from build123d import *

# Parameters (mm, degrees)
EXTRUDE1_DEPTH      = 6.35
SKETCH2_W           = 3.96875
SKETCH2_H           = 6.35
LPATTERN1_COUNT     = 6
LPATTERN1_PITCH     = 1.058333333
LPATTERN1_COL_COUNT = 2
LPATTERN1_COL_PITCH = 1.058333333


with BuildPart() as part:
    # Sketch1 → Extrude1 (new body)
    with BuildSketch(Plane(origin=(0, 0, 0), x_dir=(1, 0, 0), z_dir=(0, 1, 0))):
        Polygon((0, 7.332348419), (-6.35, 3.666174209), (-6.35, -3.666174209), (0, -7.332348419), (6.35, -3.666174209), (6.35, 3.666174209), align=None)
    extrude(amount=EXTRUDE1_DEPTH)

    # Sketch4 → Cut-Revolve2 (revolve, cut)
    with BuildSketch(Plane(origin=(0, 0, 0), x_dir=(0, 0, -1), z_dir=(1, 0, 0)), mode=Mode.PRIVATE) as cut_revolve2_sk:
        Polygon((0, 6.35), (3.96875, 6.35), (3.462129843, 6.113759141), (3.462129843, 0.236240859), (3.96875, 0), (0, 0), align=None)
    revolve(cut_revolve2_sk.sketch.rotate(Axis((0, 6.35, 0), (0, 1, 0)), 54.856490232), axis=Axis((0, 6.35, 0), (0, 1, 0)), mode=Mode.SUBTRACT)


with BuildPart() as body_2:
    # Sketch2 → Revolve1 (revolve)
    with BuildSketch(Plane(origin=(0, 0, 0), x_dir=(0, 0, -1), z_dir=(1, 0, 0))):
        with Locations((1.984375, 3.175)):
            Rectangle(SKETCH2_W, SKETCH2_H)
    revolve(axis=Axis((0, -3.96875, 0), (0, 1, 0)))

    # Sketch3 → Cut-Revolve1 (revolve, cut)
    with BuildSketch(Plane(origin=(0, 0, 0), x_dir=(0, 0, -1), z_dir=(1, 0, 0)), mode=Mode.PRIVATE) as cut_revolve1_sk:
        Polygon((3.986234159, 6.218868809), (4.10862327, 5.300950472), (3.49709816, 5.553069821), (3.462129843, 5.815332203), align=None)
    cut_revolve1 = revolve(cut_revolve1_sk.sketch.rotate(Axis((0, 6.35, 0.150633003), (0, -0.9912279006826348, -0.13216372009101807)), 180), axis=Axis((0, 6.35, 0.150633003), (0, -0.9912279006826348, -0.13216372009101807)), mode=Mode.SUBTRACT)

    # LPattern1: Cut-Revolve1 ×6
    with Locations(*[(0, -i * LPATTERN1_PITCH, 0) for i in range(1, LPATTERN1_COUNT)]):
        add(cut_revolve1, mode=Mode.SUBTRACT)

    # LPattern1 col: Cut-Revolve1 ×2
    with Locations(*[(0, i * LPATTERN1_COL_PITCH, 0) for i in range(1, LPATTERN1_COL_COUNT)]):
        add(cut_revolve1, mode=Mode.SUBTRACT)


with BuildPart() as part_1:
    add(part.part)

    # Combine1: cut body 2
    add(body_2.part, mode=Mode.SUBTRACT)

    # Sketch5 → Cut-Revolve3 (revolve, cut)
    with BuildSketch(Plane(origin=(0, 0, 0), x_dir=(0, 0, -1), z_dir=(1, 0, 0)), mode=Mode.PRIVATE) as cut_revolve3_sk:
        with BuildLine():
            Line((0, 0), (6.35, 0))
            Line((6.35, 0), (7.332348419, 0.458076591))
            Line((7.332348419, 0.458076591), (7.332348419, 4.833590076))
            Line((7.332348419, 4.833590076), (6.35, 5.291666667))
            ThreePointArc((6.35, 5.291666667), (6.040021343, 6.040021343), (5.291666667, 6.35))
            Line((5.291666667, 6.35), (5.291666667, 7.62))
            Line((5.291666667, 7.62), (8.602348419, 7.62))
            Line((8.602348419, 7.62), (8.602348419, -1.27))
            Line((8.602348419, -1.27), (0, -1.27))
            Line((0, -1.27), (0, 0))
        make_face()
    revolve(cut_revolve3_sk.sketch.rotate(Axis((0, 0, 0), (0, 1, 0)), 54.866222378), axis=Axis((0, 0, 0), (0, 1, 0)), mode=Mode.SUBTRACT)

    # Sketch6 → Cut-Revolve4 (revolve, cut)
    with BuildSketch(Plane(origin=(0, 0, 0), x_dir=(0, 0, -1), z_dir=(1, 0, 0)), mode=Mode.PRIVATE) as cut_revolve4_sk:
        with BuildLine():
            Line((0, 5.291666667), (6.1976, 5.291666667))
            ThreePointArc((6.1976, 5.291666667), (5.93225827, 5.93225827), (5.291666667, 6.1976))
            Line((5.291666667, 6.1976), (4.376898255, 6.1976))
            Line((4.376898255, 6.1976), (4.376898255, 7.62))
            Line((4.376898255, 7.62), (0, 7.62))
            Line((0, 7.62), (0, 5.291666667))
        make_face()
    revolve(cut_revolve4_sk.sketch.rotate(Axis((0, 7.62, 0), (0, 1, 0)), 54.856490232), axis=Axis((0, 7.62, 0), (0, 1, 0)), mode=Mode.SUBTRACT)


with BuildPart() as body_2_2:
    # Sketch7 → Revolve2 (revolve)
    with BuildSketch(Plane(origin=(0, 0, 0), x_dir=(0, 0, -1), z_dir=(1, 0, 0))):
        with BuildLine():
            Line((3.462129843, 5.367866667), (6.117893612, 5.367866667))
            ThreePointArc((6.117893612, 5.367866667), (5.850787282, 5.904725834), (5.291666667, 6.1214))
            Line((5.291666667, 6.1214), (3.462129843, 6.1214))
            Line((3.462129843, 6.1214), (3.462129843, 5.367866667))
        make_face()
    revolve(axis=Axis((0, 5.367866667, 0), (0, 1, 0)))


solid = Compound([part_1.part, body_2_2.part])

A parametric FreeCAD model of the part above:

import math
import FreeCAD as App
import Part
import Sketcher
from FreeCAD import Vector
Q = App.Units.Quantity

doc = App.newDocument("Part")
body = doc.addObject("PartDesign::Body", "Body")

sketch1 = body.newObject("Sketcher::SketchObject", "Sketch")
sketch1.AttachmentSupport = (doc.getObject("XZ_Plane"), [""])
sketch1.MapMode = "FlatFace"
sketch1.addGeometry([
    Part.LineSegment(Vector(0, -7, 0), Vector(-6, -4, 0)),
    Part.LineSegment(Vector(-6, -4, 0), Vector(-6, 4, 0)),
    Part.LineSegment(Vector(-6, 4, 0), Vector(0, 7, 0)),
    Part.LineSegment(Vector(0, 7, 0), Vector(6, 4, 0)),
    Part.LineSegment(Vector(6, 4, 0), Vector(6, -4, 0)),
    Part.LineSegment(Vector(6, -4, 0), Vector(0, -7, 0)),
], False)
sketch1.addConstraint([
    Sketcher.Constraint("Coincident", 0, 2, 1, 1),
    Sketcher.Constraint("Coincident", 1, 2, 2, 1),
    Sketcher.Constraint("Coincident", 2, 2, 3, 1),
    Sketcher.Constraint("Coincident", 3, 2, 4, 1),
    Sketcher.Constraint("Coincident", 4, 2, 5, 1),
    Sketcher.Constraint("Coincident", 5, 2, 0, 1),
    Sketcher.Constraint("Vertical", 1),
    Sketcher.Constraint("Vertical", 4),
    Sketcher.Constraint("Symmetric", 0, 2, 3, 2, -1, 1),
    Sketcher.Constraint("Symmetric", 2, 2, 5, 2, -1, 1),
    Sketcher.Constraint("PointOnObject", 2, 2, -2),
    Sketcher.Constraint("Parallel", 2, 5),
    Sketcher.Constraint("Horizontal", 1, 2, 3, 2),
    Sketcher.Constraint("Angle", 0, Q("150 deg")),
    Sketcher.Constraint("DistanceX", 1, 2, 3, 2, Q("0.5 in")),
    Sketcher.Constraint("DistanceY", 1, 1, 1, 2, Q("7.332348 mm")),
])
pad1 = body.newObject("PartDesign::Pad", "Pad")
pad1.Profile = sketch1
pad1.Length = Q("0.25 in")
pad1.Reversed = True

sketch2 = body.newObject("Sketcher::SketchObject", "Sketch001")
sketch2.AttachmentSupport = (doc.getObject("YZ_Plane"), [""])
sketch2.MapMode = "FlatFace"
sketch2.addGeometry([
    Part.LineSegment(Vector(6.3, -4, 0), Vector(6.3, 0, 0)),
    Part.LineSegment(Vector(6.3, 0, 0), Vector(0, 0, 0)),
    Part.LineSegment(Vector(0, 0, 0), Vector(0, -4, 0)),
    Part.LineSegment(Vector(0, -4, 0), Vector(0.2, -3.5, 0)),
    Part.LineSegment(Vector(0.2, -3.5, 0), Vector(6.1, -3.5, 0)),
    Part.LineSegment(Vector(6.1, -3.5, 0), Vector(6.3, -4, 0)),
], False)
sketch2.addConstraint([
    Sketcher.Constraint("Coincident", 0, 2, 1, 1),
    Sketcher.Constraint("Coincident", 1, 2, 2, 1),
    Sketcher.Constraint("Coincident", 2, 2, 3, 1),
    Sketcher.Constraint("Coincident", 3, 2, 4, 1),
    Sketcher.Constraint("Coincident", 4, 2, 5, 1),
    Sketcher.Constraint("Coincident", 5, 2, 0, 1),
    Sketcher.Constraint("Vertical", 0),
    Sketcher.Constraint("Horizontal", 1),
    Sketcher.Constraint("Vertical", 2),
    Sketcher.Constraint("Horizontal", 4),
    Sketcher.Constraint("Coincident", 1, 2, -1, 1),
    Sketcher.Constraint("Horizontal", 2, 2, 5, 2),
    Sketcher.Constraint("Equal", 3, 5),
    Sketcher.Constraint("Angle", 3, Q("65 deg")),
    Sketcher.Constraint("DistanceX", 1, 2, 1, 1, Q("0.25 in")),
    Sketcher.Constraint("DistanceY", 0, 1, 0, 2, Q("0.15625 in")),
    Sketcher.Constraint("DistanceX", 4, 1, 4, 2, Q("5.877518 mm")),
])
groove = body.newObject("PartDesign::Groove", "Groove")
groove.Profile = sketch2
groove.ReferenceAxis = (sketch2, ["H_Axis"])
groove.Angle = 360
body2 = doc.addObject("PartDesign::Body", "Body001")

sketch3 = body2.newObject("Sketcher::SketchObject", "Sketch002")
sketch3.AttachmentSupport = (doc.getObject("YZ_Plane001"), [""])
sketch3.MapMode = "FlatFace"
sketch3.addGeometry([
    Part.LineSegment(Vector(6.3, 0, 0), Vector(0, 0, 0)),
    Part.LineSegment(Vector(0, 0, 0), Vector(0, -4, 0)),
    Part.LineSegment(Vector(0, -4, 0), Vector(6.3, -4, 0)),
    Part.LineSegment(Vector(6.3, -4, 0), Vector(6.3, 0, 0)),
], False)
sketch3.addConstraint([
    Sketcher.Constraint("Coincident", 0, 2, 1, 1),
    Sketcher.Constraint("Coincident", 1, 2, 2, 1),
    Sketcher.Constraint("Coincident", 2, 2, 3, 1),
    Sketcher.Constraint("Coincident", 3, 2, 0, 1),
    Sketcher.Constraint("Horizontal", 0),
    Sketcher.Constraint("Vertical", 1),
    Sketcher.Constraint("Horizontal", 2),
    Sketcher.Constraint("Vertical", 3),
    Sketcher.Constraint("Coincident", 0, 2, -1, 1),
    Sketcher.Constraint("DistanceX", 0, 2, 0, 1, Q("0.25 in")),
    Sketcher.Constraint("DistanceY", 1, 2, 1, 1, Q("0.15625 in")),
])
revolution = body2.newObject("PartDesign::Revolution", "Revolution")
revolution.Profile = sketch3
revolution.ReferenceAxis = (sketch3, ["H_Axis"])
revolution.Angle = 360

sketch4 = body2.newObject("Sketcher::SketchObject", "Sketch003")
sketch4.AttachmentSupport = (doc.getObject("YZ_Plane001"), [""])
sketch4.MapMode = "FlatFace"
sketch4.addGeometry([
    Part.LineSegment(Vector(5.3, -4.11, 0), Vector(6.22, -3.99, 0)),
    Part.LineSegment(Vector(6.22, -3.99, 0), Vector(5.82, -3.46, 0)),
    Part.LineSegment(Vector(5.82, -3.46, 0), Vector(5.55, -3.5, 0)),
    Part.LineSegment(Vector(5.55, -3.5, 0), Vector(5.3, -4.11, 0)),
], False)
sketch4.addGeometry(Part.LineSegment(Vector(5.68, 0.06, 0), Vector(4.76, -0.06, 0)), True)
sketch4.addConstraint([
    Sketcher.Constraint("Coincident", 0, 2, 1, 1),
    Sketcher.Constraint("Coincident", 1, 2, 2, 1),
    Sketcher.Constraint("Coincident", 2, 2, 3, 1),
    Sketcher.Constraint("Coincident", 3, 2, 0, 1),
    Sketcher.Constraint("Parallel", 0, 2),
    Sketcher.Constraint("Parallel", 2, 4),
    Sketcher.Constraint("Equal", 1, 3),
    Sketcher.Constraint("Equal", 0, 4),
    Sketcher.Constraint("DistanceY", 2, 2, -1, 1, Q("3.497098 mm")),
    Sketcher.Constraint("DistanceX", 2, 2, 0, 2, Q("0.665799 mm")),
    Sketcher.Constraint("Distance", 0, Q("0.926042 mm")),
    Sketcher.Constraint("Distance", 1, Q("0.661458 mm")),
    Sketcher.Constraint("DistanceX", -1, 1, 0, 2, Q("6.218869 mm")),
    Sketcher.Constraint("DistanceY", 1, 2, -1, 1, Q("3.46213 mm")),
    Sketcher.Constraint("DistanceX", -1, 1, 4, 1, Q("5.679212 mm")),
    Sketcher.Constraint("DistanceY", 0, 2, 4, 1, Q("4.047429 mm")),
])
groove2 = body2.newObject("PartDesign::Groove", "Groove001")
groove2.Profile = sketch4
groove2.ReferenceAxis = (sketch4, ["Axis0"])
groove2.Angle = 360
doc.recompute()

linearpattern = body2.newObject("PartDesign::LinearPattern", "LinearPattern")
linearpattern.Originals = [groove2]
linearpattern.Direction = (doc.getObject("Y_Axis001"), [""])
linearpattern.Mode = "offset"
linearpattern.Offset = 1.058333
linearpattern.Occurrences = 6
linearpattern.Reversed = True
body2.Tip = linearpattern
doc.recompute()

linearpattern2 = body2.newObject("PartDesign::LinearPattern", "LinearPattern001")
linearpattern2.Originals = [groove2]
linearpattern2.Direction = (doc.getObject("Y_Axis001"), [""])
linearpattern2.Mode = "offset"
linearpattern2.Offset = 1.058333
linearpattern2.Occurrences = 2
body2.Tip = linearpattern2
doc.recompute()

boolean = body.newObject("PartDesign::Boolean", "Boolean")
boolean.Type = "Cut"
boolean.addObjects([body2])

sketch5 = body.newObject("Sketcher::SketchObject", "Sketch004")
sketch5.AttachmentSupport = (doc.getObject("YZ_Plane"), [""])
sketch5.MapMode = "FlatFace"
sketch5.addGeometry([
    Part.LineSegment(Vector(0, -6.3, 0), Vector(0, 0, 0)),
    Part.LineSegment(Vector(0, 0, 0), Vector(-1.3, 0, 0)),
    Part.LineSegment(Vector(-1.3, 0, 0), Vector(-1.3, -8.6, 0)),
    Part.LineSegment(Vector(-1.3, -8.6, 0), Vector(7.6, -8.6, 0)),
    Part.LineSegment(Vector(7.6, -8.6, 0), Vector(7.6, -5.3, 0)),
    Part.LineSegment(Vector(7.6, -5.3, 0), Vector(6.3, -5.3, 0)),
    Part.ArcOfCircle(Part.Circle(Vector(5.3, -5.3, 0), Vector(0, 0, 1), 1.1), math.radians(-90), math.radians(0)),
    Part.LineSegment(Vector(5.3, -6.3, 0), Vector(4.8, -7.3, 0)),
    Part.LineSegment(Vector(4.8, -7.3, 0), Vector(0.5, -7.3, 0)),
    Part.LineSegment(Vector(0.5, -7.3, 0), Vector(0, -6.3, 0)),
], False)
sketch5.addConstraint([
    Sketcher.Constraint("Coincident", 0, 2, 1, 1),
    Sketcher.Constraint("Coincident", 1, 2, 2, 1),
    Sketcher.Constraint("Coincident", 2, 2, 3, 1),
    Sketcher.Constraint("Coincident", 3, 2, 4, 1),
    Sketcher.Constraint("Coincident", 4, 2, 5, 1),
    Sketcher.Constraint("Coincident", 5, 2, 6, 2),
    Sketcher.Constraint("Coincident", 6, 1, 7, 1),
    Sketcher.Constraint("Coincident", 7, 2, 8, 1),
    Sketcher.Constraint("Coincident", 8, 2, 9, 1),
    Sketcher.Constraint("Coincident", 9, 2, 0, 1),
    Sketcher.Constraint("Vertical", 0),
    Sketcher.Constraint("Horizontal", 1),
    Sketcher.Constraint("Vertical", 2),
    Sketcher.Constraint("Horizontal", 3),
    Sketcher.Constraint("Vertical", 4),
    Sketcher.Constraint("Horizontal", 5),
    Sketcher.Constraint("Horizontal", 8),
    Sketcher.Constraint("Coincident", 0, 2, -1, 1),
    Sketcher.Constraint("Horizontal", 6, 3, 4, 2),
    Sketcher.Constraint("Horizontal", 6, 1, 9, 2),
    Sketcher.Constraint("Equal", 1, 5),
    Sketcher.Constraint("Equal", 7, 9),
    Sketcher.Constraint("Angle", 7, Q("-115 deg")),
    Sketcher.Constraint("DistanceX", 1, 2, 1, 1, Q("0.05 in")),
    Sketcher.Constraint("DistanceX", 3, 1, 3, 2, Q("0.35 in")),
    Sketcher.Constraint("DistanceY", 0, 1, 0, 2, Q("0.25 in")),
    Sketcher.Constraint("DistanceY", 3, 2, 7, 2, Q("0.05 in")),
    Sketcher.Constraint("Radius", 6, Q("1.058333 mm")),
    Sketcher.Constraint("Distance", 7, Q("1.083902 mm")),
    Sketcher.Constraint("DistanceX", 8, 2, 8, 1, Q("4.375513 mm")),
])
groove3 = body.newObject("PartDesign::Groove", "Groove002")
groove3.Profile = sketch5
groove3.ReferenceAxis = (sketch5, ["H_Axis"])
groove3.Angle = 360

sketch6 = body.newObject("Sketcher::SketchObject", "Sketch005")
sketch6.AttachmentSupport = (doc.getObject("YZ_Plane"), [""])
sketch6.MapMode = "FlatFace"
sketch6.addGeometry([
    Part.LineSegment(Vector(5.3, 0, 0), Vector(5.3, -6.2, 0)),
    Part.ArcOfCircle(Part.Circle(Vector(5.3, -5.3, 0), Vector(0, 0, 1), 0.9), math.radians(-90), math.radians(0)),
    Part.LineSegment(Vector(6.2, -5.3, 0), Vector(6.2, -4.4, 0)),
    Part.LineSegment(Vector(6.2, -4.4, 0), Vector(7.6, -4.4, 0)),
    Part.LineSegment(Vector(7.6, -4.4, 0), Vector(7.6, 0, 0)),
    Part.LineSegment(Vector(7.6, 0, 0), Vector(5.3, 0, 0)),
], False)
sketch6.addConstraint([
    Sketcher.Constraint("Coincident", 0, 2, 1, 1),
    Sketcher.Constraint("Tangent", 1, 2, 2, 1),
    Sketcher.Constraint("Coincident", 2, 2, 3, 1),
    Sketcher.Constraint("Coincident", 3, 2, 4, 1),
    Sketcher.Constraint("Coincident", 4, 2, 5, 1),
    Sketcher.Constraint("Coincident", 5, 2, 0, 1),
    Sketcher.Constraint("Vertical", 0),
    Sketcher.Constraint("Vertical", 2),
    Sketcher.Constraint("Horizontal", 3),
    Sketcher.Constraint("Vertical", 4),
    Sketcher.Constraint("Horizontal", 5),
    Sketcher.Constraint("PointOnObject", 4, 2, -1),
    Sketcher.Constraint("Vertical", 1, 3, 0, 2),
    Sketcher.Constraint("DistanceX", -1, 1, 3, 2, Q("0.3 in")),
    Sketcher.Constraint("DistanceX", 3, 1, 3, 2, Q("0.056 in")),
    Sketcher.Constraint("DistanceY", 0, 2, 0, 1, Q("0.244 in")),
    Sketcher.Constraint("DistanceY", 4, 1, 4, 2, Q("4.376898 mm")),
    Sketcher.Constraint("Radius", 1, Q("0.905933 mm")),
])
groove4 = body.newObject("PartDesign::Groove", "Groove003")
groove4.Profile = sketch6
groove4.ReferenceAxis = (sketch6, ["H_Axis"])
groove4.Angle = 360
body3 = doc.addObject("PartDesign::Body", "Body002")

sketch7 = body3.newObject("Sketcher::SketchObject", "Sketch006")
sketch7.AttachmentSupport = (doc.getObject("YZ_Plane002"), [""])
sketch7.MapMode = "FlatFace"
sketch7.addGeometry([
    Part.LineSegment(Vector(5.4, -3.5, 0), Vector(5.4, -6.1, 0)),
    Part.ArcOfCircle(Part.Circle(Vector(5.3, -5.3, 0), Vector(0, 0, 1), 0.8), math.radians(-85), math.radians(0)),
    Part.LineSegment(Vector(6.1, -5.3, 0), Vector(6.1, -3.5, 0)),
    Part.LineSegment(Vector(6.1, -3.5, 0), Vector(5.4, -3.5, 0)),
], False)
sketch7.addConstraint([
    Sketcher.Constraint("Coincident", 0, 2, 1, 1),
    Sketcher.Constraint("Tangent", 1, 2, 2, 1),
    Sketcher.Constraint("Coincident", 2, 2, 3, 1),
    Sketcher.Constraint("Coincident", 3, 2, 0, 1),
    Sketcher.Constraint("Vertical", 0),
    Sketcher.Constraint("Vertical", 2),
    Sketcher.Constraint("Horizontal", 3),
    Sketcher.Constraint("DistanceX", -1, 1, 1, 2, Q("0.241 in")),
    Sketcher.Constraint("DistanceX", 1, 3, 0, 2, Q("0.003 in")),
    Sketcher.Constraint("Radius", 1, Q("0.829733 mm")),
    Sketcher.Constraint("DistanceY", 0, 2, 0, 1, Q("2.655764 mm")),
    Sketcher.Constraint("DistanceY", 2, 2, -1, 1, Q("3.46213 mm")),
])
revolution2 = body3.newObject("PartDesign::Revolution", "Revolution001")
revolution2.Profile = sketch7
revolution2.ReferenceAxis = (sketch7, ["H_Axis"])
revolution2.Angle = 360

doc.recompute()
